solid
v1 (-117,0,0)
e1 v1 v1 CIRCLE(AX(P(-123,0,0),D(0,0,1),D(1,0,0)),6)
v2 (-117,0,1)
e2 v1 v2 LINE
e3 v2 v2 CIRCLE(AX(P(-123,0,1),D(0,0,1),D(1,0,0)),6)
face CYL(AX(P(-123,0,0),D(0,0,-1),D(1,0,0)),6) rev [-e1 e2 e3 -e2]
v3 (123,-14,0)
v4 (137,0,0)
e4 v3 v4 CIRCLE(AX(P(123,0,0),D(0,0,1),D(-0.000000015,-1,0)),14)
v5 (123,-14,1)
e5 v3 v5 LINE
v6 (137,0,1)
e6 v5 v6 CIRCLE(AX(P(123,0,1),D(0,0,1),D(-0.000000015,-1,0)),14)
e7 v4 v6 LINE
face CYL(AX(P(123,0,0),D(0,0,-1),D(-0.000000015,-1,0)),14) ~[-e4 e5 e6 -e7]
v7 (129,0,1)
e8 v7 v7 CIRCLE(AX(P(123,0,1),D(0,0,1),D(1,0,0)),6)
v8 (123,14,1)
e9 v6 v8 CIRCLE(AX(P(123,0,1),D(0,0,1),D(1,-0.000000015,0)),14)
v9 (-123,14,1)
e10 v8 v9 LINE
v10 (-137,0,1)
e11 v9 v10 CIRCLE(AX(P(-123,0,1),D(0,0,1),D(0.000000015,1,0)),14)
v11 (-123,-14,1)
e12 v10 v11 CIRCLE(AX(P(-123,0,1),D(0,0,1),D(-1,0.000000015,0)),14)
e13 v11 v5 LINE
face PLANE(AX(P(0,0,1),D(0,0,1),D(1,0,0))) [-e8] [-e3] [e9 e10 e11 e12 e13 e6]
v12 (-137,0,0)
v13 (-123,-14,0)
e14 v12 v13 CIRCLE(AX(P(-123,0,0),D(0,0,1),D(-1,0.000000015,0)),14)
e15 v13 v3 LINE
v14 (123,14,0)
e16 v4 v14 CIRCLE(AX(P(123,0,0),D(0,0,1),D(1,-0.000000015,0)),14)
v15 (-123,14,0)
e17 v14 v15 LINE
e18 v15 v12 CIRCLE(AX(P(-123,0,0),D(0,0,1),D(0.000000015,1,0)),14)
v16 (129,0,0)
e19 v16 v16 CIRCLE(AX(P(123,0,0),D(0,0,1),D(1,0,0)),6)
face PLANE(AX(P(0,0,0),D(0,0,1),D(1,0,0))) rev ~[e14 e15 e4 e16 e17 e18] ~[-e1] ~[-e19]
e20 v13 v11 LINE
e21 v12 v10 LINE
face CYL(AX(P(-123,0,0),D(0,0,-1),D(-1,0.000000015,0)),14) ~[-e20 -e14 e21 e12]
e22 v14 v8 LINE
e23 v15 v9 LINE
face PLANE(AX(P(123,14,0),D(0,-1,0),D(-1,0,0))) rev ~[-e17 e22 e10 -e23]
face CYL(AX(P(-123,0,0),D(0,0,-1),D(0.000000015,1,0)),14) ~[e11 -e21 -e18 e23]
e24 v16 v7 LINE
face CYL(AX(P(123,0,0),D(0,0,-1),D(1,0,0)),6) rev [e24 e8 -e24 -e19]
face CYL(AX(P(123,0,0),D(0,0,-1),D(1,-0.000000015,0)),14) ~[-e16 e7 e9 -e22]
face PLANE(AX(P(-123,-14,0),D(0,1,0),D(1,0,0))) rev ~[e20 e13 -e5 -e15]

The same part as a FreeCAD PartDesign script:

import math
import FreeCAD as App
import Part
import Sketcher

V = App.Vector
Q = App.Units.Quantity

doc = App.newDocument("Part")
params = doc.addObject("Spreadsheet::Sheet", "Params")
for row, (alias, value) in enumerate([
    ("sketch1_diameter", "12 mm"),
    ("sketch1_radius", "14 mm"),
    ("sketch1_width", "246 mm"),
    ("pad1_length", "1 mm"),
], start=1):
    params.set(f"A{row}", alias)
    params.set(f"B{row}", "=" + value)
    params.setAlias(f"B{row}", alias)

body = doc.addObject("PartDesign::Body", "Body")

# Sketch on XY plane
sketch1 = doc.addObject("Sketcher::SketchObject", "Sketch")
body.addObject(sketch1)
sketch1.AttachmentSupport = (doc.XY_Plane, [""])
sketch1.MapMode = "FlatFace"
sketch1.addGeometry([
    Part.LineSegment(V(123, 14, 0), V(-123, 14, 0)),  # 0
    Part.ArcOfCircle(Part.Circle(V(-123, 0, 0), V(0, 0, 1), 14), math.radians(90), math.radians(180)),  # 1
    Part.ArcOfCircle(Part.Circle(V(-123, 0, 0), V(0, 0, 1), 14), math.radians(180), math.radians(270)),  # 2
    Part.LineSegment(V(-123, -14, 0), V(123, -14, 0)),  # 3
    Part.ArcOfCircle(Part.Circle(V(123, 0, 0), V(0, 0, 1), 14), math.radians(-90), math.radians(0)),  # 4
    Part.ArcOfCircle(Part.Circle(V(123, 0, 0), V(0, 0, 1), 14), math.radians(0), math.radians(90)),  # 5
    Part.Circle(V(-123, 0, 0), V(0, 0, 1), 6),  # 6
    Part.Circle(V(123, 0, 0), V(0, 0, 1), 6),  # 7
], False)
sketch1.addConstraint([
    Sketcher.Constraint("Tangent", 0, 2, 1, 1),
    Sketcher.Constraint("Tangent", 1, 2, 2, 1),
    Sketcher.Constraint("Tangent", 2, 2, 3, 1),
    Sketcher.Constraint("Tangent", 3, 2, 4, 1),
    Sketcher.Constraint("Tangent", 4, 2, 5, 1),
    Sketcher.Constraint("Tangent", 5, 2, 0, 1),
    Sketcher.Constraint("Horizontal", 0),
    Sketcher.Constraint("Horizontal", 3),
    Sketcher.Constraint("Coincident", 6, 3, 1, 3),
    Sketcher.Constraint("Coincident", 7, 3, 4, 3),
    Sketcher.Constraint("Equal", 1, 2),
    Sketcher.Constraint("Equal", 2, 4),
    Sketcher.Constraint("Equal", 6, 7),
    Sketcher.Constraint("Symmetric", 1, 3, 4, 3, -1, 1),
    Sketcher.Constraint("PointOnObject", 1, 2, -1),
    Sketcher.Constraint("PointOnObject", 4, 2, -1),
    Sketcher.Constraint("Diameter", 6, Q("12 mm")),
    Sketcher.Constraint("Radius", 1, Q("14 mm")),
    Sketcher.Constraint("DistanceX", 0, 2, 0, 1, Q("246 mm")),
])
sketch1.setExpression("Constraints[16]", "Params.sketch1_diameter")
sketch1.setExpression("Constraints[17]", "Params.sketch1_radius")
sketch1.setExpression("Constraints[18]", "Params.sketch1_width")
pad1 = doc.addObject("PartDesign::Pad", "Pad")
body.addObject(pad1)
pad1.Profile = sketch1
pad1.setExpression("Length", "Params.pad1_length")

doc.recompute()
